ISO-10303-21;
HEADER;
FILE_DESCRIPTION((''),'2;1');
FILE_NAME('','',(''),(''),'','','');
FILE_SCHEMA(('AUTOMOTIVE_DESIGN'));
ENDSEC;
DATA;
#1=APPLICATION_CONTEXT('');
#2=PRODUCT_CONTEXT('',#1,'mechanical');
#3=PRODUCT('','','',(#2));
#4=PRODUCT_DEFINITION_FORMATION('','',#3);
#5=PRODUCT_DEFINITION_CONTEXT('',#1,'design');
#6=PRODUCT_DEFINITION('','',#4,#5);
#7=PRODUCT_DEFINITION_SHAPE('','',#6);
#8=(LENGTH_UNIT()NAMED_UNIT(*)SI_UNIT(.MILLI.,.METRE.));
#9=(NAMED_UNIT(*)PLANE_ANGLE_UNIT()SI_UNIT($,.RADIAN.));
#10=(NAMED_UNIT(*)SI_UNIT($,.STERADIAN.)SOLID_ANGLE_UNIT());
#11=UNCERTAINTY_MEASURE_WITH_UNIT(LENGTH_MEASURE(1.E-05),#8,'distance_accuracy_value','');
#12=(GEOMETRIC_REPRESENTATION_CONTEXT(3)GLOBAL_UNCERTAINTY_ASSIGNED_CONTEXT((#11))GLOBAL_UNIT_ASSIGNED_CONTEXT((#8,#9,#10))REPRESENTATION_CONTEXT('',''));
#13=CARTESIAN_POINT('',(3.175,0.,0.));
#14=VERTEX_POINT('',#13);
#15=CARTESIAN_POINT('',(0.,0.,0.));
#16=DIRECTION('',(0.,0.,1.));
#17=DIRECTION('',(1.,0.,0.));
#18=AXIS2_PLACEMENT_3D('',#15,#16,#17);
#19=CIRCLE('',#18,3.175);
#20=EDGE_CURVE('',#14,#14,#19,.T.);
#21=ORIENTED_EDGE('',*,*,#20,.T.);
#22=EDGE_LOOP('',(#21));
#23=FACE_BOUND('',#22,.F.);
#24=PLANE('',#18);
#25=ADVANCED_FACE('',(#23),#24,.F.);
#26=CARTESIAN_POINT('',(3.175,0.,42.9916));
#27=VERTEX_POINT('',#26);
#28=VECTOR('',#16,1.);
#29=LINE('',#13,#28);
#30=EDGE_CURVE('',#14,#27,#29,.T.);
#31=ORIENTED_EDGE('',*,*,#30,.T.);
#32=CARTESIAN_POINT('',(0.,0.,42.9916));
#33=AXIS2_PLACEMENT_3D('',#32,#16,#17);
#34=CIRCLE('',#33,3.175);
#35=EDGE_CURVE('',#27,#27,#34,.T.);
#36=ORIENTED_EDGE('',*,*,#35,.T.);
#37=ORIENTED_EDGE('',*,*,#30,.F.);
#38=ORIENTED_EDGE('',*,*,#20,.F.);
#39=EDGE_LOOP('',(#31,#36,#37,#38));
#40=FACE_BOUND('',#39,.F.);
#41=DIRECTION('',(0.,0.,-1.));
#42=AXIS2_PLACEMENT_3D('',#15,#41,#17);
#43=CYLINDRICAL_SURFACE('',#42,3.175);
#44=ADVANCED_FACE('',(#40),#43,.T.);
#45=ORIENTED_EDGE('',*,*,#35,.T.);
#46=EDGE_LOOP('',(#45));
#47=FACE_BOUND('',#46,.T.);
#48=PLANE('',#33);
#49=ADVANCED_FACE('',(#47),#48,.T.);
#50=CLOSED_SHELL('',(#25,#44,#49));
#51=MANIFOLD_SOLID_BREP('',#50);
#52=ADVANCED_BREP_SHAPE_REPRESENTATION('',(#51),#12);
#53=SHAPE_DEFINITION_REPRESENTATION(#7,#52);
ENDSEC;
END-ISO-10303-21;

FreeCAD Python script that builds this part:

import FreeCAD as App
import Part
import Sketcher
Q = App.Units.Quantity

doc = App.newDocument("Part")
body = doc.addObject("PartDesign::Body", "Body")

sketch1 = doc.addObject("Sketcher::SketchObject", "Sketch")
body.addObject(sketch1)
sketch1.AttachmentSupport = (doc.XY_Plane, [""])
sketch1.MapMode = "FlatFace"
sketch1.addGeometry(Part.Circle(App.Vector(0, 0, 0), App.Vector(0, 0, 1), 3.2), False)
sketch1.addConstraint(Sketcher.Constraint("Coincident", 0, 3, -1, 1))
sketch1.addConstraint(Sketcher.Constraint("Diameter", 0, Q("0.25 in")))
pad1 = doc.addObject("PartDesign::Pad", "Pad")
body.addObject(pad1)
pad1.Profile = sketch1
pad1.Length = 42.9916

doc.recompute()
